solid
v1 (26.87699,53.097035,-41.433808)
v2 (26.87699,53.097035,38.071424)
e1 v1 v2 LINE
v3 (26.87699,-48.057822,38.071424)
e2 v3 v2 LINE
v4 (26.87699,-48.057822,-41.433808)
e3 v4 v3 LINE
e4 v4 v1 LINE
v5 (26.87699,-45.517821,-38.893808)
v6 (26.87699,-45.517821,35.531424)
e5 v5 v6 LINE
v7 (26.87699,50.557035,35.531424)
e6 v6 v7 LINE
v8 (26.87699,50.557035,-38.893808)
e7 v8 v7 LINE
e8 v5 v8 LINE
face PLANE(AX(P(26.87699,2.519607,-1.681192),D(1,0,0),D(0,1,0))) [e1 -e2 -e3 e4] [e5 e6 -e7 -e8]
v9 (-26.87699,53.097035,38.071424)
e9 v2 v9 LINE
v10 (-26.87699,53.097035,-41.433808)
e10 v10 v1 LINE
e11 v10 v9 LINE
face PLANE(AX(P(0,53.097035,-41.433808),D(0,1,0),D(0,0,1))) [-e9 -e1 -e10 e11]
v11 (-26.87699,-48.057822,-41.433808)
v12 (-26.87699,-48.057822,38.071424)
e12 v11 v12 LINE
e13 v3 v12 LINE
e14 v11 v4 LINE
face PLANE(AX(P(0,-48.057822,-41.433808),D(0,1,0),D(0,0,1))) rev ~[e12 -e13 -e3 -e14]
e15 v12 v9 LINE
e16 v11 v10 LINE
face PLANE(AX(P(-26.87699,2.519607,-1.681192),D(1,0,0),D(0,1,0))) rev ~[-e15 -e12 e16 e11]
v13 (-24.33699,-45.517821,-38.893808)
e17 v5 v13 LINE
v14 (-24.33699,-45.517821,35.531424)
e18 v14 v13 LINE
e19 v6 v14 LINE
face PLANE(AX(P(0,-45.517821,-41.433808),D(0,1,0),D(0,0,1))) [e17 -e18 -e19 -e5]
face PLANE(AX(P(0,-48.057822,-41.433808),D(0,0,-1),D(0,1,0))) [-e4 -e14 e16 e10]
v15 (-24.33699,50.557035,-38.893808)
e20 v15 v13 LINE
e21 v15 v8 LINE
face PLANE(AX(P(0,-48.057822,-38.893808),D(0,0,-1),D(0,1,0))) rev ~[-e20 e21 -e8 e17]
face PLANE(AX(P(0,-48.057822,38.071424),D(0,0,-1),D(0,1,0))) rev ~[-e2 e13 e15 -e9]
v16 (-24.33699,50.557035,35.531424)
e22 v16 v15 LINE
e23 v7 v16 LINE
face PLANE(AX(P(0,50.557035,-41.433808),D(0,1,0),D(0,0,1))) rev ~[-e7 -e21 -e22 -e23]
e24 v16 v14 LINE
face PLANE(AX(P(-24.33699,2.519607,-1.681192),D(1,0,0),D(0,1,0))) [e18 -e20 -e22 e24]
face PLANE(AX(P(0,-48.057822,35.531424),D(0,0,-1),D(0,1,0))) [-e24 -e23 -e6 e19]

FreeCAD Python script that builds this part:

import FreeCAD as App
import Part
import Sketcher
Q = App.Units.Quantity


def faces_at(feature, points):
    """Names of the faces that lie closest to the given points."""
    faces = feature.Shape.Faces
    near = lambda p: min(range(len(faces)), key=lambda i: faces[i].distToShape(Part.Vertex(*p))[0])
    return sorted({f"Face{near(p) + 1}" for p in points})


def add_polygon(sketch, points):
    """Adds a closed chain of lines whose ends are joined by coincident constraints."""
    first, n = sketch.GeometryCount, len(points)
    for a, b in zip(points, points[1:] + points[:1]):
        sketch.addGeometry(Part.LineSegment(App.Vector(*a, 0), App.Vector(*b, 0)), False)
    for i in range(n):
        sketch.addConstraint(Sketcher.Constraint("Coincident", first + i, 2, first + (i + 1) % n, 1))

doc = App.newDocument("Part")
body = doc.addObject("PartDesign::Body", "Body")

# Sketch on YZ plane
sketch1 = doc.addObject("Sketcher::SketchObject", "Sketch")
body.addObject(sketch1)
sketch1.AttachmentSupport = (doc.YZ_Plane, [""])
sketch1.MapMode = "FlatFace"
add_polygon(sketch1, [(-48, 38), (-48, -41), (53, -41), (53, 38)])  # lines 0-3
sketch1.addConstraint([
    Sketcher.Constraint("Vertical", 0),
    Sketcher.Constraint("Horizontal", 1),
    Sketcher.Constraint("Vertical", 2),
    Sketcher.Constraint("Horizontal", 3),
    Sketcher.Constraint("DistanceY", 0, 2, 0, 1, 79.505231),
    Sketcher.Constraint("DistanceX", 1, 1, 1, 2, 101.154857),
    Sketcher.Constraint("DistanceX", 0, 2, -1, 1, 48.057822),
    Sketcher.Constraint("DistanceY", 0, 2, -1, 1, 41.433808),
])
pad1 = doc.addObject("PartDesign::Pad", "Pad")
body.addObject(pad1)
pad1.Profile = sketch1
pad1.Length = 53.75398
pad1.Midplane = True
doc.recompute()

thickness = doc.addObject("PartDesign::Thickness", "Thickness")
body.addObject(thickness)
thickness.Base = (pad1, faces_at(pad1, [(26.877, 2.52, -1.681)]))
thickness.Value = Q("0.1 in")
thickness.Reversed = True
thickness.Join = "Arc"

doc.recompute()
